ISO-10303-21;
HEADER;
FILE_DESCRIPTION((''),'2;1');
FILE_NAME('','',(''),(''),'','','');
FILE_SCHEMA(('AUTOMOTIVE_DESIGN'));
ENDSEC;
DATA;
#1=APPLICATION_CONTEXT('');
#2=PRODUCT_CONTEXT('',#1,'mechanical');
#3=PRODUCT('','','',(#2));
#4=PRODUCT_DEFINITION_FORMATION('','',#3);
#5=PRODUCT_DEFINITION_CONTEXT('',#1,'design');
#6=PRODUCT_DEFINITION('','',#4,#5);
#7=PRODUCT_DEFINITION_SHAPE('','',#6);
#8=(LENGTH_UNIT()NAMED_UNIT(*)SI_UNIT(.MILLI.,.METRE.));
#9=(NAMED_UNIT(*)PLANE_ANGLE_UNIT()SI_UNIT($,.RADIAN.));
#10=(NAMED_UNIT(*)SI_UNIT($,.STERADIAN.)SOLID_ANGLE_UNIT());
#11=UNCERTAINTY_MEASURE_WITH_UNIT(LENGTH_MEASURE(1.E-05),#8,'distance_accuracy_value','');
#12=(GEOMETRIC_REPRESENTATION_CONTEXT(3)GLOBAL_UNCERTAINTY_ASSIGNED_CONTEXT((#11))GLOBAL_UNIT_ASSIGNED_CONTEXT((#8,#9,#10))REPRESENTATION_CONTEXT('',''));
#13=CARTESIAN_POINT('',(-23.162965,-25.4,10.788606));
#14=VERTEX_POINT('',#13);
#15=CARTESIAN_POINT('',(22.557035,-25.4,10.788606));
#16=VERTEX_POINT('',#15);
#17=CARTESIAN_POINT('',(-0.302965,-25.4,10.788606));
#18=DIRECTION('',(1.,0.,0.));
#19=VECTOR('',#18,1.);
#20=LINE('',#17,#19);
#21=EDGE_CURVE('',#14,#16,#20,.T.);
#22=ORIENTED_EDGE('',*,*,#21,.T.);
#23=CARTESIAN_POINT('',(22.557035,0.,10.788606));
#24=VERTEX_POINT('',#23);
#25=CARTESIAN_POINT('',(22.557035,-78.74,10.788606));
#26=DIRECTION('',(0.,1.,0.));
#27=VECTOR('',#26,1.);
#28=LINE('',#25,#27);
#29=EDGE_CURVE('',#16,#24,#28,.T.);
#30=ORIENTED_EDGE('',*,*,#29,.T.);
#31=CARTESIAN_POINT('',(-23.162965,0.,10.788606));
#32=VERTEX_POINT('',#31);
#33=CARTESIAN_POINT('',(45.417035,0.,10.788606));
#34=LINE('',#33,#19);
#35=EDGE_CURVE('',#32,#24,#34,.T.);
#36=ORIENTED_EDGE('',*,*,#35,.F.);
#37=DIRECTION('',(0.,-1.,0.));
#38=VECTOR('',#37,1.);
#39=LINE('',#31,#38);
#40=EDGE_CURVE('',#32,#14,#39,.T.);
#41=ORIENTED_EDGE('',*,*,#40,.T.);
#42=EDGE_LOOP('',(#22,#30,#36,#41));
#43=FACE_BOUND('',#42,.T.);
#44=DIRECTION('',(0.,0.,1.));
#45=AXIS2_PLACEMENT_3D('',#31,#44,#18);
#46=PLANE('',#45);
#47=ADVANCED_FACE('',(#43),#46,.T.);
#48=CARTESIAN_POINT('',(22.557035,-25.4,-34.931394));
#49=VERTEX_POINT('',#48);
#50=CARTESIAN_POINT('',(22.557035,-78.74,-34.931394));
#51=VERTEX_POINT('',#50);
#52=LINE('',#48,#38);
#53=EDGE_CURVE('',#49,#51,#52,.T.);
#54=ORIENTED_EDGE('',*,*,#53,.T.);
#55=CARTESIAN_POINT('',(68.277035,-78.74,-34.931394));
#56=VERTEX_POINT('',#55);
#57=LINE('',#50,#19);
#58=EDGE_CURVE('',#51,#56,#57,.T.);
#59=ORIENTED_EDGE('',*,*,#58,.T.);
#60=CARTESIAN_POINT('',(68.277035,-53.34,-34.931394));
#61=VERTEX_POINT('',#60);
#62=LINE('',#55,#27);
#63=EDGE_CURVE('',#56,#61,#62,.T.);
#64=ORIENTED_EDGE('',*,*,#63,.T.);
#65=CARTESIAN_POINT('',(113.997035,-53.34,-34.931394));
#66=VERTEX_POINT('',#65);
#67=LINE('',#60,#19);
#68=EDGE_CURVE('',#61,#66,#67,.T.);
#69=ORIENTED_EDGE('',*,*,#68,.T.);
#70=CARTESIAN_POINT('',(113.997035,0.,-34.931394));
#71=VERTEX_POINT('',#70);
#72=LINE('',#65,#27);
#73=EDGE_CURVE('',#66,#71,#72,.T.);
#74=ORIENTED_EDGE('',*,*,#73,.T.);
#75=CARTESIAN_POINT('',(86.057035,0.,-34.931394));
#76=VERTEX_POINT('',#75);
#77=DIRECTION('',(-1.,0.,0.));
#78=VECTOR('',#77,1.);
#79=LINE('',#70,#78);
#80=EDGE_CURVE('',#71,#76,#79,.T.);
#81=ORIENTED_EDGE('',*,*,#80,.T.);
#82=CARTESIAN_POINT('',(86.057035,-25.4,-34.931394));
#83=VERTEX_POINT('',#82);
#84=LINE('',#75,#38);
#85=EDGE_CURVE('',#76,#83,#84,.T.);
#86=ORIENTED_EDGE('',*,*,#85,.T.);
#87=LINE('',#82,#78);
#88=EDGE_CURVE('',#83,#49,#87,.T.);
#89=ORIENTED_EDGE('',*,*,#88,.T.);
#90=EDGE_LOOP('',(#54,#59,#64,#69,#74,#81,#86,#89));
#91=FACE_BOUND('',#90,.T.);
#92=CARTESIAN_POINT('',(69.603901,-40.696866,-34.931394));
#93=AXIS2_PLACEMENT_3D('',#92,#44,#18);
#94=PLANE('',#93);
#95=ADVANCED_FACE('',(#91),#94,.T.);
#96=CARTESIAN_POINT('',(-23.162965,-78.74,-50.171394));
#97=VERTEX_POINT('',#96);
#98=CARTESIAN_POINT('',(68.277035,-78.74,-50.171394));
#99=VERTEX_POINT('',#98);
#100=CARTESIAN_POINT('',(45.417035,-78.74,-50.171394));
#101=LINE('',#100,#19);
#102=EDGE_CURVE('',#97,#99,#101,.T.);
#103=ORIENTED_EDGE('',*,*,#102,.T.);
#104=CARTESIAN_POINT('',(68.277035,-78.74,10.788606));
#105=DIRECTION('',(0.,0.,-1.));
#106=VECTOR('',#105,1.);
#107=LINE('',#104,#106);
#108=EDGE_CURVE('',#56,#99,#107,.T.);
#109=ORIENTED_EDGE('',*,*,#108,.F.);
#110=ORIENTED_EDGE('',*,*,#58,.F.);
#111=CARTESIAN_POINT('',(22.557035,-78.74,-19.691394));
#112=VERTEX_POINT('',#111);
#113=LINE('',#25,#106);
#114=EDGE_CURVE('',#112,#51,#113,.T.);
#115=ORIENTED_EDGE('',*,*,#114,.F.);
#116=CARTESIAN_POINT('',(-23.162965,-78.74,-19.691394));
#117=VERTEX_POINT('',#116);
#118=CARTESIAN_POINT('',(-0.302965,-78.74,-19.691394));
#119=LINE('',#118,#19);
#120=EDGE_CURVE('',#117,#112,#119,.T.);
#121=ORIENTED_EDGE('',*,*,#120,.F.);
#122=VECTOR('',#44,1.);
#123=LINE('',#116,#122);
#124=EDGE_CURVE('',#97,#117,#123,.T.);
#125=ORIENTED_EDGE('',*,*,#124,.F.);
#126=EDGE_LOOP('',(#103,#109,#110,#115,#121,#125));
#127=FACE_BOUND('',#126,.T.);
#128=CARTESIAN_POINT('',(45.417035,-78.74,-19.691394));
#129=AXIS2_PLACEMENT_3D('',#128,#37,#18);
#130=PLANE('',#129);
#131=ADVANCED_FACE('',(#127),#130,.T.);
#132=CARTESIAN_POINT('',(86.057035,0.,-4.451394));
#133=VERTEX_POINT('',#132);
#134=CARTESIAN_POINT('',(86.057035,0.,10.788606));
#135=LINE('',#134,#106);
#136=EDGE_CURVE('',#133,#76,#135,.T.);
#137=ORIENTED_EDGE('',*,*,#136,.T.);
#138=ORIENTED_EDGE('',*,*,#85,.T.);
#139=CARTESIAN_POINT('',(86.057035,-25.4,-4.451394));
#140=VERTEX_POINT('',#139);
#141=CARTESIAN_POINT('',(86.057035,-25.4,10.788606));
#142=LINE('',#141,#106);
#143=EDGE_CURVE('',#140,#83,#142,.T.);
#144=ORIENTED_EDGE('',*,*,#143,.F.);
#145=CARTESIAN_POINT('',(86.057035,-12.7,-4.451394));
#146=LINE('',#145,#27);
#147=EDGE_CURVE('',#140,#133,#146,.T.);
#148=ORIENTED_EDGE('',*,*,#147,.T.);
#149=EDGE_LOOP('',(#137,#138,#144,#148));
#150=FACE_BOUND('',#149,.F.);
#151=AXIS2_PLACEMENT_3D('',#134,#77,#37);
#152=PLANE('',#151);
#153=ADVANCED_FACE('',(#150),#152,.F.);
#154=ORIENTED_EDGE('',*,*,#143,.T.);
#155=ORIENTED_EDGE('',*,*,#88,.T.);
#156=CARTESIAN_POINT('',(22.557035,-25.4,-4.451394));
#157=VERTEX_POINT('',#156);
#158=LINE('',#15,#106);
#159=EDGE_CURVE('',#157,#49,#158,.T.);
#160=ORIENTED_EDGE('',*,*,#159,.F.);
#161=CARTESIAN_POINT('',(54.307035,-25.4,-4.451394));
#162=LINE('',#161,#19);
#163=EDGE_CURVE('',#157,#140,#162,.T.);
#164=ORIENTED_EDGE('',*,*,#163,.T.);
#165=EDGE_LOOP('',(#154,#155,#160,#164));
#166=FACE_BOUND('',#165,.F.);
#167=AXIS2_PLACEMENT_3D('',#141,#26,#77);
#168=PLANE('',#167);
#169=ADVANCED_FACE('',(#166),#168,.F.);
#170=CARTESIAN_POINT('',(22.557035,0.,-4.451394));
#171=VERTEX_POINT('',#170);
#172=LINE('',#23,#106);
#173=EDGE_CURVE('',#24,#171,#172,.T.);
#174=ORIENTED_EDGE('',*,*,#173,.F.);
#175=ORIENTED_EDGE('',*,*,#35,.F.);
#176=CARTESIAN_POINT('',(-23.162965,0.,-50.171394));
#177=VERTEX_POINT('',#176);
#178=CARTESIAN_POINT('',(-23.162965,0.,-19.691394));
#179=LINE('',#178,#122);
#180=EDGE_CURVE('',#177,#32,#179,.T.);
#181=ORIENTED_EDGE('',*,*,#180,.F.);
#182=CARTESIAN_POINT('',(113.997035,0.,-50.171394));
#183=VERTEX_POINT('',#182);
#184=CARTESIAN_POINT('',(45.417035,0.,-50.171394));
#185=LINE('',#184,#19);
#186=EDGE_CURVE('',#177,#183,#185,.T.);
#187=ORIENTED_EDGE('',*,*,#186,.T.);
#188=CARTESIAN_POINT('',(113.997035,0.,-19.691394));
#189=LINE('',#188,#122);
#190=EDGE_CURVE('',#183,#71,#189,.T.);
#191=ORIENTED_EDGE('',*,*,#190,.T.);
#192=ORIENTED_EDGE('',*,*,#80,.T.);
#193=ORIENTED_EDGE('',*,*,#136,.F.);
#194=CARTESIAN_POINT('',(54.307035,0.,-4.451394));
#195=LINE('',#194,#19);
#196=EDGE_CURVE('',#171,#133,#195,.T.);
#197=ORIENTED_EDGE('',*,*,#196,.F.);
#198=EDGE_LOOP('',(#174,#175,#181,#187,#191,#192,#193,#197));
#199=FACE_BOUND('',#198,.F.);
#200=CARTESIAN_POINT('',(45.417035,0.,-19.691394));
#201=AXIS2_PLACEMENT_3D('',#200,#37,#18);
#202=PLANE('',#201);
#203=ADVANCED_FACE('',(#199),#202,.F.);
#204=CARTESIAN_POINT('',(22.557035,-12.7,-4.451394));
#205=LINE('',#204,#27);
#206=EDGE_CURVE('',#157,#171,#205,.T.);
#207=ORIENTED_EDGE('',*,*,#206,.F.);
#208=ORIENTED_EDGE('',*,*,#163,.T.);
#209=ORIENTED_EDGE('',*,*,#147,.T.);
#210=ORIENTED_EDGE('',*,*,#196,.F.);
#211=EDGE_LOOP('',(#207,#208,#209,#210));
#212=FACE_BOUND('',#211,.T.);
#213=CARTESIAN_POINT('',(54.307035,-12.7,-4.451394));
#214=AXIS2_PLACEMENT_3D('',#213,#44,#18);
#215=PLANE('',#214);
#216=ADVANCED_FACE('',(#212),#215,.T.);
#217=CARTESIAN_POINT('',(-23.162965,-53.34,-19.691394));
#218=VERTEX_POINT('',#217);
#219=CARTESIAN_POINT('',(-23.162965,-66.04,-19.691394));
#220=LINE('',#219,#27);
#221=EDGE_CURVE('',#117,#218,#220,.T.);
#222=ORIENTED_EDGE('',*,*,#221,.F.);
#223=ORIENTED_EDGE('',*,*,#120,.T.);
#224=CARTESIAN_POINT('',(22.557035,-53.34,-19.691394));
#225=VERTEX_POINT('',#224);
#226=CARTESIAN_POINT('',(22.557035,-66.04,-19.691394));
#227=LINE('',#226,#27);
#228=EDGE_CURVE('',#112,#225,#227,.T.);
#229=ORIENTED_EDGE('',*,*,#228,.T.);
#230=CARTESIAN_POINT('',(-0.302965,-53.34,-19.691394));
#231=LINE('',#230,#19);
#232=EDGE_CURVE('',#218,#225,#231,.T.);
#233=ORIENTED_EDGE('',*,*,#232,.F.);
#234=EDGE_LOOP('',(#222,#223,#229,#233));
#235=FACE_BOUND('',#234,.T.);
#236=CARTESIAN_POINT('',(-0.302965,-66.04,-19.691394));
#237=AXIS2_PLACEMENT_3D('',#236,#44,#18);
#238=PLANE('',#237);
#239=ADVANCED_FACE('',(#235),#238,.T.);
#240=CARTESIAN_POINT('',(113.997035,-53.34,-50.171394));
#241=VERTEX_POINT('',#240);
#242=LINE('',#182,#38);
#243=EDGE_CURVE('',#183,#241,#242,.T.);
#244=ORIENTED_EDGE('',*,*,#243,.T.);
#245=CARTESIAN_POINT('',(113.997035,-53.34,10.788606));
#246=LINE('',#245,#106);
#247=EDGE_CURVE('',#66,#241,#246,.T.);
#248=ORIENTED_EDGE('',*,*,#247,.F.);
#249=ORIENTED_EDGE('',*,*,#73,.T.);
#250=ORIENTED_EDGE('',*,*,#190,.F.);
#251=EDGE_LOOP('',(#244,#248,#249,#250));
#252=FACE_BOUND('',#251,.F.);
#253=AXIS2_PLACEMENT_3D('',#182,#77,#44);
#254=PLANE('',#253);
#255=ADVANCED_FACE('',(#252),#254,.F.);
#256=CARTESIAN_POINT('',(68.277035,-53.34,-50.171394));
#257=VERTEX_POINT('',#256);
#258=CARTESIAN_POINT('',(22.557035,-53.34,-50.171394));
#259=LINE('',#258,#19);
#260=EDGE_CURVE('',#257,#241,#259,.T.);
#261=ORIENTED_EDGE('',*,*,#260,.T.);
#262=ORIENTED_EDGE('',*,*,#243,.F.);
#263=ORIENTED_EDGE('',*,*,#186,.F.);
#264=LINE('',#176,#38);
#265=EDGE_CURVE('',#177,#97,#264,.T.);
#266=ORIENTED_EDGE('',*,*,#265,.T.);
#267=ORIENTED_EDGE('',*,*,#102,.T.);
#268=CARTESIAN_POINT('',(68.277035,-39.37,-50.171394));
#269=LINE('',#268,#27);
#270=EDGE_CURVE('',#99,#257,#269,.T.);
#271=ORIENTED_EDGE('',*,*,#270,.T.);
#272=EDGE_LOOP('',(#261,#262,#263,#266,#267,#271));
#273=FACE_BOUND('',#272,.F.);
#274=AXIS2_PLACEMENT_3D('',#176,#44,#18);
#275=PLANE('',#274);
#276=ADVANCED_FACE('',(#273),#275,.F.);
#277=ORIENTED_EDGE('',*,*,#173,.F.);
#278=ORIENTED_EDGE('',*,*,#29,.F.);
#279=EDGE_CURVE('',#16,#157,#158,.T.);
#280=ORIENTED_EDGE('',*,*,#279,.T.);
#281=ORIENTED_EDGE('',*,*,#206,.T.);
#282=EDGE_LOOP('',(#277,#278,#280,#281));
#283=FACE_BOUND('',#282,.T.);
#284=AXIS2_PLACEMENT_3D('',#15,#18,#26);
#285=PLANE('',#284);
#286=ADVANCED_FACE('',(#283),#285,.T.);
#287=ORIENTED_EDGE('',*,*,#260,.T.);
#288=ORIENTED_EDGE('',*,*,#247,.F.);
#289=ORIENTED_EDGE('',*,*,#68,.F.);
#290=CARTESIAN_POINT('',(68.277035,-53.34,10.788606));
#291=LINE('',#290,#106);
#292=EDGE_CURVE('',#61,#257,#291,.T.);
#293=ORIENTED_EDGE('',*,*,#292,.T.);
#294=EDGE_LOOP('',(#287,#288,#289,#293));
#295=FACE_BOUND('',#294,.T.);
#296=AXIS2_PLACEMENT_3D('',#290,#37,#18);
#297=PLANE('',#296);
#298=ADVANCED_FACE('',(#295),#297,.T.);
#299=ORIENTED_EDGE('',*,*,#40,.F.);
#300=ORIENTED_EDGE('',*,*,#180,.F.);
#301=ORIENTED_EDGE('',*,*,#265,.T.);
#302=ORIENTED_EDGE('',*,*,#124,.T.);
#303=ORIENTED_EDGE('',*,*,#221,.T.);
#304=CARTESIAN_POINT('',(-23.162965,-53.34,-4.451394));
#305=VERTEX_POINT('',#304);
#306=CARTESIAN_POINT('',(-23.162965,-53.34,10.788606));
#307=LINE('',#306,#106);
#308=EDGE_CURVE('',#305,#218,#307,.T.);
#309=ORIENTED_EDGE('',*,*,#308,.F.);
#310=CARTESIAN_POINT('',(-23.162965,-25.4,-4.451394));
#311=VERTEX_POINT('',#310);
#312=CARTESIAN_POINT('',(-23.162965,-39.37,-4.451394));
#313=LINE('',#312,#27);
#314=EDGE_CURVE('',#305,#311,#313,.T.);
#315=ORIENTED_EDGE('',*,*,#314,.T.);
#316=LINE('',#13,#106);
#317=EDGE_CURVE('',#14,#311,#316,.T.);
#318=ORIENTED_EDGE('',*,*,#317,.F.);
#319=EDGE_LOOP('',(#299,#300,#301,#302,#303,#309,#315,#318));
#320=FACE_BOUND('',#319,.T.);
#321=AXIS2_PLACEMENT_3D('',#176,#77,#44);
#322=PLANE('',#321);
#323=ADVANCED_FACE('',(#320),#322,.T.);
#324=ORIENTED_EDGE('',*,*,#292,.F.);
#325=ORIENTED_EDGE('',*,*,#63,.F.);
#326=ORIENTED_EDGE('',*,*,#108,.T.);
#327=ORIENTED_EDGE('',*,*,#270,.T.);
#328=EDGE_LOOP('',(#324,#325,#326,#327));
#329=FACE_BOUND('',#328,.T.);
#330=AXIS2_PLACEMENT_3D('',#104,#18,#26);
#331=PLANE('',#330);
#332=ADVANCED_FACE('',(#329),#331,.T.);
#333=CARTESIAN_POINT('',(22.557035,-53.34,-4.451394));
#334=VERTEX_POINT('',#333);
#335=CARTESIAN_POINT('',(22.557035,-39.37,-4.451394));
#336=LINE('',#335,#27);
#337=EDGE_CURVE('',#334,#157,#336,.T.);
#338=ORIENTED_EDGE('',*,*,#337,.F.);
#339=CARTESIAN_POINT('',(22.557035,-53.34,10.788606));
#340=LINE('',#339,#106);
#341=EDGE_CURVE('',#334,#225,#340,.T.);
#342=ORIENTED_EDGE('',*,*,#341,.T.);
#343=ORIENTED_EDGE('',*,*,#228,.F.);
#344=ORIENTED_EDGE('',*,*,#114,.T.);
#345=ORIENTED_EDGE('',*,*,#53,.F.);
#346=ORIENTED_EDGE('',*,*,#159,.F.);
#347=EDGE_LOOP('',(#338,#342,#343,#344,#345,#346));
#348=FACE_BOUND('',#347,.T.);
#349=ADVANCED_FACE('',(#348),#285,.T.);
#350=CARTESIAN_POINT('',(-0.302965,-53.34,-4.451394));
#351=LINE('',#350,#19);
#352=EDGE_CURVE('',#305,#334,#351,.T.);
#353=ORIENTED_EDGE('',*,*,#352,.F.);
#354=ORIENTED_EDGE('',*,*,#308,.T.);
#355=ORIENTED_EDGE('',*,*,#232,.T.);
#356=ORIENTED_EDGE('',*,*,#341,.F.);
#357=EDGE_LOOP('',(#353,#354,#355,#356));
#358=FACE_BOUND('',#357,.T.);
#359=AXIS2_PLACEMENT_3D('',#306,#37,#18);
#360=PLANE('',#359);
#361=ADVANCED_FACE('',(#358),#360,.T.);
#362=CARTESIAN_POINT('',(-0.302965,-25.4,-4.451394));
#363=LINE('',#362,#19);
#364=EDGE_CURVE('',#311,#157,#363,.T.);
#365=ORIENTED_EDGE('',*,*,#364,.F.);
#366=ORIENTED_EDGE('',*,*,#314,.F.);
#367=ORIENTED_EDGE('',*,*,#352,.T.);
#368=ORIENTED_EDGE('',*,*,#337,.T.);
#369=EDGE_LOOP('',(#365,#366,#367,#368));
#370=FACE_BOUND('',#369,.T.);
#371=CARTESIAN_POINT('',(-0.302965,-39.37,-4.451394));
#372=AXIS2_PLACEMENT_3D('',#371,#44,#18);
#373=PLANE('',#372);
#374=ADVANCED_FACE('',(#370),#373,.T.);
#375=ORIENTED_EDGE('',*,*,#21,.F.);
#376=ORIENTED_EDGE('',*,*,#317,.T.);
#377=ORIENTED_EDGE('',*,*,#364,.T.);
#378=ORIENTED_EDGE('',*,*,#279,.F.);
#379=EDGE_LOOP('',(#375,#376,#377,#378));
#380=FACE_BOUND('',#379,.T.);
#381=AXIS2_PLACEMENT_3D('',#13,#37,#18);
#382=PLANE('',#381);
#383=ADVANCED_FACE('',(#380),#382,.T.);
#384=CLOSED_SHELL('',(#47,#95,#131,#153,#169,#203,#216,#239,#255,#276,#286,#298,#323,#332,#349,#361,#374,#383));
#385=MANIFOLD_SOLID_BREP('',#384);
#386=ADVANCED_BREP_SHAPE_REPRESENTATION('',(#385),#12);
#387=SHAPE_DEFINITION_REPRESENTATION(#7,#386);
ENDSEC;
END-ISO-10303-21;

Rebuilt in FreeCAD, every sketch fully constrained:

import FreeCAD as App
import Part
import Sketcher
Q = App.Units.Quantity


def add_polygon(sketch, points):
    """Adds a closed chain of lines whose ends are joined by coincident constraints."""
    first, n = sketch.GeometryCount, len(points)
    for a, b in zip(points, points[1:] + points[:1]):
        sketch.addGeometry(Part.LineSegment(App.Vector(*a, 0), App.Vector(*b, 0)), False)
    for i in range(n):
        sketch.addConstraint(Sketcher.Constraint("Coincident", first + i, 2, first + (i + 1) % n, 1))

doc = App.newDocument("Part")
body = doc.addObject("PartDesign::Body", "Body")

# Sketch on XZ plane
sketch1 = body.newObject("Sketcher::SketchObject", "Sketch")
sketch1.AttachmentSupport = (doc.getObject("XZ_Plane"), [""])
sketch1.MapMode = "FlatFace"
add_polygon(sketch1, [(-23, 11), (-23, -50), (114, -50), (114, 11)])  # lines 0-3
sketch1.addConstraint([
    Sketcher.Constraint("Vertical", 0),
    Sketcher.Constraint("Horizontal", 1),
    Sketcher.Constraint("Vertical", 2),
    Sketcher.Constraint("Horizontal", 3),
    Sketcher.Constraint("DistanceX", 1, 1, 1, 2, Q("5.4 in")),
    Sketcher.Constraint("DistanceY", 0, 2, 0, 1, Q("2.4 in")),
    Sketcher.Constraint("DistanceX", 0, 2, -1, 1, Q("23.162965 mm")),
    Sketcher.Constraint("DistanceY", 0, 2, -1, 1, Q("50.171394 mm")),
])
pad1 = body.newObject("PartDesign::Pad", "Pad")
pad1.Profile = sketch1
pad1.Length = Q("3.1 in")

# Sketch on XY plane
sketch2 = body.newObject("Sketcher::SketchObject", "Sketch001")
sketch2.AttachmentSupport = (doc.getObject("XY_Plane"), [""])
sketch2.MapMode = "FlatFace"
sketch2.AttachmentOffset = App.Placement(App.Vector(0, 0, 10.788606), App.Rotation())
add_polygon(sketch2, [(68, -53), (68, -79), (114, -79), (114, -53)])  # lines 0-3
sketch2.addConstraint([
    Sketcher.Constraint("Vertical", 0),
    Sketcher.Constraint("Horizontal", 1),
    Sketcher.Constraint("Vertical", 2),
    Sketcher.Constraint("Horizontal", 3),
    Sketcher.Constraint("DistanceY", 0, 2, 0, 1, Q("1 in")),
    Sketcher.Constraint("DistanceX", 1, 1, 1, 2, Q("1.8 in")),
    Sketcher.Constraint("DistanceY", 0, 2, -1, 1, Q("3.1 in")),
    Sketcher.Constraint("DistanceX", -1, 1, 0, 2, Q("68.277035 mm")),
])
pocket1 = body.newObject("PartDesign::Pocket", "Pocket")
pocket1.Profile = sketch2
pocket1.Type = "ThroughAll"

# Sketch on XY plane
sketch3 = body.newObject("Sketcher::SketchObject", "Sketch002")
sketch3.AttachmentSupport = (doc.getObject("XY_Plane"), [""])
sketch3.MapMode = "FlatFace"
sketch3.AttachmentOffset = App.Placement(App.Vector(0, 0, 10.788606), App.Rotation())
add_polygon(sketch3, [(86, -25), (23, -25), (23, -79), (68, -79), (68, -53), (114, -53), (114, 0), (86, 0)])  # lines 0-7
sketch3.addConstraint([
    Sketcher.Constraint("Horizontal", 0),
    Sketcher.Constraint("Vertical", 1),
    Sketcher.Constraint("Horizontal", 2),
    Sketcher.Constraint("Vertical", 3),
    Sketcher.Constraint("Horizontal", 4),
    Sketcher.Constraint("Vertical", 5),
    Sketcher.Constraint("Horizontal", 6),
    Sketcher.Constraint("Vertical", 7),
    Sketcher.Constraint("PointOnObject", 5, 2, -1),
    Sketcher.Constraint("Equal", 2, 4),
    Sketcher.Constraint("Equal", 1, 5),
    Sketcher.Constraint("DistanceY", 3, 1, 3, 2, Q("1 in")),
    Sketcher.Constraint("DistanceX", 0, 2, 0, 1, Q("2.5 in")),
    Sketcher.Constraint("DistanceX", 2, 1, 2, 2, Q("1.8 in")),
    Sketcher.Constraint("DistanceY", 1, 2, 1, 1, Q("2.1 in")),
    Sketcher.Constraint("DistanceX", -1, 1, 0, 2, Q("22.557035 mm")),
])
pocket2 = body.newObject("PartDesign::Pocket", "Pocket001")
pocket2.Profile = sketch3
pocket2.Length = Q("1.8 in")

# Sketch on XY plane
sketch4 = body.newObject("Sketcher::SketchObject", "Sketch003")
sketch4.AttachmentSupport = (doc.getObject("XY_Plane"), [""])
sketch4.MapMode = "FlatFace"
sketch4.AttachmentOffset = App.Placement(App.Vector(0, 0, 10.788606), App.Rotation())
add_polygon(sketch4, [(23, 0), (23, -25), (86, -25), (86, 0)])  # lines 0-3
sketch4.addConstraint([
    Sketcher.Constraint("Vertical", 0),
    Sketcher.Constraint("Horizontal", 1),
    Sketcher.Constraint("Vertical", 2),
    Sketcher.Constraint("Horizontal", 3),
    Sketcher.Constraint("PointOnObject", 2, 2, -1),
    Sketcher.Constraint("DistanceY", 0, 2, 0, 1, Q("1 in")),
    Sketcher.Constraint("DistanceX", 1, 1, 1, 2, Q("2.5 in")),
    Sketcher.Constraint("DistanceX", -1, 1, 0, 2, Q("22.557035 mm")),
])
pocket3 = body.newObject("PartDesign::Pocket", "Pocket002")
pocket3.Profile = sketch4
pocket3.Length = Q("0.6 in")

# Sketch on XY plane
sketch5 = body.newObject("Sketcher::SketchObject", "Sketch004")
sketch5.AttachmentSupport = (doc.getObject("XY_Plane"), [""])
sketch5.MapMode = "FlatFace"
sketch5.AttachmentOffset = App.Placement(App.Vector(0, 0, 10.788606), App.Rotation())
add_polygon(sketch5, [(-23, -25), (-23, -53), (23, -53), (23, -25)])  # lines 0-3
sketch5.addConstraint([
    Sketcher.Constraint("Vertical", 0),
    Sketcher.Constraint("Horizontal", 1),
    Sketcher.Constraint("Vertical", 2),
    Sketcher.Constraint("Horizontal", 3),
    Sketcher.Constraint("DistanceX", 1, 1, 1, 2, Q("1.8 in")),
    Sketcher.Constraint("DistanceY", 0, 2, 0, 1, Q("1.1 in")),
    Sketcher.Constraint("DistanceY", 2, 2, -1, 1, Q("1 in")),
    Sketcher.Constraint("DistanceX", 0, 2, -1, 1, Q("23.162965 mm")),
])
pocket4 = body.newObject("PartDesign::Pocket", "Pocket003")
pocket4.Profile = sketch5
pocket4.Length = Q("0.6 in")

# Sketch on XY plane
sketch6 = body.newObject("Sketcher::SketchObject", "Sketch005")
sketch6.AttachmentSupport = (doc.getObject("XY_Plane"), [""])
sketch6.MapMode = "FlatFace"
sketch6.AttachmentOffset = App.Placement(App.Vector(0, 0, 10.788606), App.Rotation())
add_polygon(sketch6, [(-23, -53), (-23, -79), (23, -79), (23, -53)])  # lines 0-3
sketch6.addConstraint([
    Sketcher.Constraint("Vertical", 0),
    Sketcher.Constraint("Horizontal", 1),
    Sketcher.Constraint("Vertical", 2),
    Sketcher.Constraint("Horizontal", 3),
    Sketcher.Constraint("DistanceY", 0, 2, 0, 1, Q("1 in")),
    Sketcher.Constraint("DistanceX", 1, 1, 1, 2, Q("1.8 in")),
    Sketcher.Constraint("DistanceY", 0, 2, -1, 1, Q("3.1 in")),
    Sketcher.Constraint("DistanceX", 0, 2, -1, 1, Q("23.162965 mm")),
])
pocket5 = body.newObject("PartDesign::Pocket", "Pocket004")
pocket5.Profile = sketch6
pocket5.Length = Q("1.2 in")

doc.recompute()
